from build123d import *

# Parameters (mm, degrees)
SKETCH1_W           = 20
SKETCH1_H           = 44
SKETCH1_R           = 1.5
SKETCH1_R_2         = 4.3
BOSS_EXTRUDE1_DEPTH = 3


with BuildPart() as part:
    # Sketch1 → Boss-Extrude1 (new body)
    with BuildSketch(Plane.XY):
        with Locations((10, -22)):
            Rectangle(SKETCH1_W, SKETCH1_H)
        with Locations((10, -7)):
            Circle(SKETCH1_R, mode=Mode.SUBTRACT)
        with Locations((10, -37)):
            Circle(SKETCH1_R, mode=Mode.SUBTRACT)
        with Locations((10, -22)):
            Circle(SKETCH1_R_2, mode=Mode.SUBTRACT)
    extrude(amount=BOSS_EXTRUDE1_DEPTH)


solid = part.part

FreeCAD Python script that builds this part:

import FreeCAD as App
import Part
import Sketcher

V = App.Vector
Q = App.Units.Quantity

doc = App.newDocument("Part")
body = doc.addObject("PartDesign::Body", "Body")

sketch1 = doc.addObject("Sketcher::SketchObject", "Sketch")
body.addObject(sketch1)
sketch1.AttachmentSupport = (doc.XY_Plane, [""])
sketch1.MapMode = "FlatFace"
sketch1.addGeometry(Part.LineSegment(V(0, 0, 0), V(0, -44, 0)), False)
sketch1.addGeometry(Part.LineSegment(V(0, -44, 0), V(20, -44, 0)), False)
sketch1.addGeometry(Part.LineSegment(V(20, -44, 0), V(20, 0, 0)), False)
sketch1.addGeometry(Part.LineSegment(V(20, 0, 0), V(0, 0, 0)), False)
sketch1.addGeometry(Part.Circle(V(10, -37, 0), V(0, 0, 1), 1.5), False)
sketch1.addGeometry(Part.Circle(V(10, -22, 0), V(0, 0, 1), 4.3), False)
sketch1.addGeometry(Part.Circle(V(10, -7, 0), V(0, 0, 1), 1.5), False)
sketch1.addConstraint(Sketcher.Constraint("Coincident", 0, 2, 1, 1))
sketch1.addConstraint(Sketcher.Constraint("Coincident", 1, 2, 2, 1))
sketch1.addConstraint(Sketcher.Constraint("Coincident", 2, 2, 3, 1))
sketch1.addConstraint(Sketcher.Constraint("Coincident", 3, 2, 0, 1))
sketch1.addConstraint(Sketcher.Constraint("Vertical", 0))
sketch1.addConstraint(Sketcher.Constraint("Horizontal", 1))
sketch1.addConstraint(Sketcher.Constraint("Vertical", 2))
sketch1.addConstraint(Sketcher.Constraint("Horizontal", 3))
sketch1.addConstraint(Sketcher.Constraint("Coincident", 3, 2, -1, 1))
sketch1.addConstraint(Sketcher.Constraint("Equal", 4, 6))
sketch1.addConstraint(Sketcher.Constraint("Vertical", 4, 3, 5, 3))
sketch1.addConstraint(Sketcher.Constraint("Vertical", 5, 3, 6, 3))
sketch1.addConstraint(Sketcher.Constraint("Diameter", 4, Q("3 mm")))
sketch1.addConstraint(Sketcher.Constraint("Diameter", 5, Q("8.6 mm")))
sketch1.addConstraint(Sketcher.Constraint("DistanceX", 1, 1, 1, 2, Q("20 mm")))
sketch1.addConstraint(Sketcher.Constraint("DistanceY", 0, 2, 0, 1, Q("44 mm")))
sketch1.addConstraint(Sketcher.Constraint("DistanceX", -1, 1, 4, 3, Q("10 mm")))
sketch1.addConstraint(Sketcher.Constraint("DistanceY", 4, 3, -1, 1, Q("37 mm")))
sketch1.addConstraint(Sketcher.Constraint("DistanceY", 5, 3, -1, 1, Q("22 mm")))
sketch1.addConstraint(Sketcher.Constraint("DistanceY", 6, 3, -1, 1, Q("7 mm")))
pad1 = doc.addObject("PartDesign::Pad", "Pad")
body.addObject(pad1)
pad1.Profile = sketch1
pad1.Length = 3

doc.recompute()
